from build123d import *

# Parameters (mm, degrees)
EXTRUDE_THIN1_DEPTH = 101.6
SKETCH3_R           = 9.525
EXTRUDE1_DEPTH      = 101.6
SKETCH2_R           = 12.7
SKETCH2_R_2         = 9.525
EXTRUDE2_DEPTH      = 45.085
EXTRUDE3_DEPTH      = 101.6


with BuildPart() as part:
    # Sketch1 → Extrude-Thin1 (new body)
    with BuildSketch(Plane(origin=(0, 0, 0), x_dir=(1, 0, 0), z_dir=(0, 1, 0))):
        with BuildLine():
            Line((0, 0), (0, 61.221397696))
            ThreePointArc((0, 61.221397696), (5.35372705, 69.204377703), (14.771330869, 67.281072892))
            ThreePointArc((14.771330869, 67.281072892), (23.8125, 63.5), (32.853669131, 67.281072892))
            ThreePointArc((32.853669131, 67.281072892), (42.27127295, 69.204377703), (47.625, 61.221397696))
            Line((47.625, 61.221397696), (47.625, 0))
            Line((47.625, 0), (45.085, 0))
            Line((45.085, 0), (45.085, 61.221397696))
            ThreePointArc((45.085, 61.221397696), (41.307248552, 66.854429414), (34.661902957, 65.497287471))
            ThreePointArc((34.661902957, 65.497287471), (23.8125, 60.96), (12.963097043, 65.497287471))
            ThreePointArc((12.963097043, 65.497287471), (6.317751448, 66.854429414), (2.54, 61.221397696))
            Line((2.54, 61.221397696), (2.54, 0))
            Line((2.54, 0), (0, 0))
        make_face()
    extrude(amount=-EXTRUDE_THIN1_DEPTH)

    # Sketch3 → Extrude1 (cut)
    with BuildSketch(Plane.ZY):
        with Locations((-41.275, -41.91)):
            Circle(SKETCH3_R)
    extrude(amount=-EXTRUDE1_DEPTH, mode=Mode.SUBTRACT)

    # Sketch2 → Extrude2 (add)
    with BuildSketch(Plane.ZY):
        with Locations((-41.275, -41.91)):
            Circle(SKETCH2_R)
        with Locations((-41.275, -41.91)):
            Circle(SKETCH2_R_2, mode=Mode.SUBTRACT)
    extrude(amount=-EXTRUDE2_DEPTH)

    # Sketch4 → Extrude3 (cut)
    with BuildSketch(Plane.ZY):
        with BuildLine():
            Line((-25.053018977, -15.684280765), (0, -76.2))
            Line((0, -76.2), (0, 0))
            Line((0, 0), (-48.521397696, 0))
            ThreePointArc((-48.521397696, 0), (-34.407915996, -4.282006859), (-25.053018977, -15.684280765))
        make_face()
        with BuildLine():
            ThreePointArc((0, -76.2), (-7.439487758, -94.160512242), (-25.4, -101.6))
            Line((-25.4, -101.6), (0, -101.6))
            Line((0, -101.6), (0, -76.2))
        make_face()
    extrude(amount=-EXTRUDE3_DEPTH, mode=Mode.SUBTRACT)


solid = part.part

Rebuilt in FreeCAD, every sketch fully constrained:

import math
import FreeCAD as App
import Part
import Sketcher
from FreeCAD import Vector
Q = App.Units.Quantity

doc = App.newDocument("Part")
params = doc.addObject("Spreadsheet::Sheet", "Params")
for row, (alias, value) in enumerate([
    ("sketch1_radius", "0.6 in"),
    ("sketch1_radius2", "0.5 in"),
    ("pad1_length", "4 in"),
    ("sketch2_diameter", "0.75 in"),
    ("pocket1_length", "4 in"),
    ("sketch3_diameter", "1 in"),
    ("sketch3_diameter2", "0.75 in"),
    ("pad2_length", "1.775 in"),
    ("sketch4_radius", "1 in"),
    ("sketch4_width", "3 in"),
    ("pocket2_length", "4 in"),
], start=1):
    params.set(f"A{row}", alias)
    params.set(f"B{row}", "=" + value)
    params.setAlias(f"B{row}", alias)

body = doc.addObject("PartDesign::Body", "Body")

# Sketch on XZ plane
sketch1 = body.newObject("Sketcher::SketchObject", "Sketch")
sketch1.AttachmentSupport = (doc.getObject("XZ_Plane"), [""])
sketch1.MapMode = "FlatFace"
sketch1.addGeometry(Part.LineSegment(Vector(0, -61.2, 0), Vector(0, 0, 0)), False)
sketch1.addGeometry(Part.LineSegment(Vector(0, 0, 0), Vector(2.5, 0, 0)), False)
sketch1.addGeometry(Part.LineSegment(Vector(2.5, 0, 0), Vector(2.5, -61.2, 0)), False)
sketch1.addGeometry(Part.ArcOfCircle(Part.Circle(Vector(8.6, -61.2, 0), Vector(0, 0, 1), 6.1), math.radians(180), math.radians(315)), False)
sketch1.addGeometry(Part.ArcOfCircle(Part.Circle(Vector(23.8, -76.2, 0), Vector(0, 0, 1), 15.2), math.radians(45), math.radians(135)), False)
sketch1.addGeometry(Part.ArcOfCircle(Part.Circle(Vector(39, -61.2, 0), Vector(0, 0, 1), 6.1), math.radians(-135), math.radians(0)), False)
sketch1.addGeometry(Part.LineSegment(Vector(45.1, -61.2, 0), Vector(45.1, 0, 0)), False)
sketch1.addGeometry(Part.LineSegment(Vector(45.1, 0, 0), Vector(47.6, 0, 0)), False)
sketch1.addGeometry(Part.LineSegment(Vector(47.6, 0, 0), Vector(47.6, -61.2, 0)), False)
sketch1.addGeometry(Part.ArcOfCircle(Part.Circle(Vector(39, -61.2, 0), Vector(0, 0, 1), 8.6), math.radians(-135), math.radians(0)), False)
sketch1.addGeometry(Part.ArcOfCircle(Part.Circle(Vector(23.8, -76.2, 0), Vector(0, 0, 1), 12.7), math.radians(45), math.radians(135)), False)
sketch1.addGeometry(Part.ArcOfCircle(Part.Circle(Vector(8.6, -61.2, 0), Vector(0, 0, 1), 8.6), math.radians(180), math.radians(315)), False)
sketch1.addConstraint(Sketcher.Constraint("Coincident", 0, 2, 1, 1))
sketch1.addConstraint(Sketcher.Constraint("Coincident", 1, 2, 2, 1))
sketch1.addConstraint(Sketcher.Constraint("Tangent", 2, 2, 3, 1))
sketch1.addConstraint(Sketcher.Constraint("Tangent", 3, 2, 4, 2))
sketch1.addConstraint(Sketcher.Constraint("Tangent", 4, 1, 5, 1))
sketch1.addConstraint(Sketcher.Constraint("Tangent", 5, 2, 6, 1))
sketch1.addConstraint(Sketcher.Constraint("Coincident", 6, 2, 7, 1))
sketch1.addConstraint(Sketcher.Constraint("Coincident", 7, 2, 8, 1))
sketch1.addConstraint(Sketcher.Constraint("Tangent", 8, 2, 9, 2))
sketch1.addConstraint(Sketcher.Constraint("Tangent", 9, 1, 10, 1))
sketch1.addConstraint(Sketcher.Constraint("Tangent", 10, 2, 11, 2))
sketch1.addConstraint(Sketcher.Constraint("Tangent", 11, 1, 0, 1))
sketch1.addConstraint(Sketcher.Constraint("Vertical", 0))
sketch1.addConstraint(Sketcher.Constraint("Horizontal", 1))
sketch1.addConstraint(Sketcher.Constraint("Vertical", 2))
sketch1.addConstraint(Sketcher.Constraint("Vertical", 6))
sketch1.addConstraint(Sketcher.Constraint("Horizontal", 7))
sketch1.addConstraint(Sketcher.Constraint("Vertical", 8))
sketch1.addConstraint(Sketcher.Constraint("Coincident", 0, 2, -1, 1))
sketch1.addConstraint(Sketcher.Constraint("Coincident", 9, 3, 5, 3))
sketch1.addConstraint(Sketcher.Constraint("Coincident", 10, 3, 4, 3))
sketch1.addConstraint(Sketcher.Constraint("Coincident", 11, 3, 3, 3))
sketch1.addConstraint(Sketcher.Constraint("Equal", 3, 5))
sketch1.addConstraint(Sketcher.Constraint("PointOnObject", 6, 2, -1))
sketch1.addConstraint(Sketcher.Constraint("Horizontal", 3, 3, 5, 3))
sketch1.addConstraint(Sketcher.Constraint("Radius", 4, Q("0.6 in")))
sketch1.addConstraint(Sketcher.Constraint("Radius", 10, Q("0.5 in")))
sketch1.addConstraint(Sketcher.Constraint("DistanceY", 4, 3, -1, 1, Q("3 in")))
sketch1.addConstraint(Sketcher.Constraint("DistanceX", -1, 1, 4, 3, Q("0.9375 in")))
sketch1.addConstraint(Sketcher.Constraint("Radius", 3, 6.088602))
sketch1.setExpression("Constraints[25]", "Params.sketch1_radius")
sketch1.setExpression("Constraints[26]", "Params.sketch1_radius2")
pad1 = body.newObject("PartDesign::Pad", "Pad")
pad1.Profile = sketch1
pad1.setExpression("Length", "Params.pad1_length")

# Sketch on YZ plane
sketch2 = body.newObject("Sketcher::SketchObject", "Sketch001")
sketch2.AttachmentSupport = (doc.getObject("YZ_Plane"), [""])
sketch2.MapMode = "FlatFace"
sketch2.addGeometry(Part.Circle(Vector(-42, -41, 0), Vector(0, 0, 1), 10), False)
sketch2.addConstraint(Sketcher.Constraint("Diameter", 0, Q("0.75 in")))
sketch2.addConstraint(Sketcher.Constraint("DistanceX", 0, 3, -1, 1, Q("1.65 in")))
sketch2.addConstraint(Sketcher.Constraint("DistanceY", 0, 3, -1, 1, Q("1.625 in")))
sketch2.setExpression("Constraints[0]", "Params.sketch2_diameter")
pocket1 = body.newObject("PartDesign::Pocket", "Pocket")
pocket1.Profile = sketch2
pocket1.setExpression("Length", "Params.pocket1_length")
pocket1.Reversed = True

# Sketch on YZ plane
sketch3 = body.newObject("Sketcher::SketchObject", "Sketch002")
sketch3.AttachmentSupport = (doc.getObject("YZ_Plane"), [""])
sketch3.MapMode = "FlatFace"
sketch3.addGeometry(Part.Circle(Vector(-42, -41, 0), Vector(0, 0, 1), 13), False)
sketch3.addGeometry(Part.Circle(Vector(-42, -41, 0), Vector(0, 0, 1), 10), False)
sketch3.addConstraint(Sketcher.Constraint("Coincident", 1, 3, 0, 3))
sketch3.addConstraint(Sketcher.Constraint("Diameter", 0, Q("1 in")))
sketch3.addConstraint(Sketcher.Constraint("Diameter", 1, Q("0.75 in")))
sketch3.addConstraint(Sketcher.Constraint("DistanceX", 0, 3, -1, 1, Q("1.65 in")))
sketch3.addConstraint(Sketcher.Constraint("DistanceY", 0, 3, -1, 1, Q("1.625 in")))
sketch3.setExpression("Constraints[1]", "Params.sketch3_diameter")
sketch3.setExpression("Constraints[2]", "Params.sketch3_diameter2")
pad2 = body.newObject("PartDesign::Pad", "Pad001")
pad2.Profile = sketch3
pad2.setExpression("Length", "Params.pad2_length")

# Sketch on YZ plane
sketch4 = body.newObject("Sketcher::SketchObject", "Sketch003")
sketch4.AttachmentSupport = (doc.getObject("YZ_Plane"), [""])
sketch4.MapMode = "FlatFace"
sketch4.addGeometry(Part.LineSegment(Vector(-16, -25, 0), Vector(-76, 0, 0)), False)
sketch4.addGeometry(Part.LineSegment(Vector(-76, 0, 0), Vector(0, 0, 0)), False)
sketch4.addGeometry(Part.LineSegment(Vector(0, 0, 0), Vector(0, -49, 0)), False)
sketch4.addGeometry(Part.ArcOfCircle(Part.Circle(Vector(-25, -49, 0), Vector(0, 0, 1), 25), math.radians(0), math.radians(68)), False)
sketch4.addGeometry(Part.ArcOfCircle(Part.Circle(Vector(-76, -25, 0), Vector(0, 0, 1), 25), math.radians(90), math.radians(180)), False)
sketch4.addGeometry(Part.LineSegment(Vector(-102, -25, 0), Vector(-102, 0, 0)), False)
sketch4.addGeometry(Part.LineSegment(Vector(-102, 0, 0), Vector(-76, 0, 0)), False)
sketch4.addConstraint(Sketcher.Constraint("Coincident", 0, 2, 1, 1))
sketch4.addConstraint(Sketcher.Constraint("Coincident", 1, 2, 2, 1))
sketch4.addConstraint(Sketcher.Constraint("Tangent", 2, 2, 3, 1))
sketch4.addConstraint(Sketcher.Constraint("Tangent", 3, 2, 0, 1))
sketch4.addConstraint(Sketcher.Constraint("Tangent", 4, 2, 5, 1))
sketch4.addConstraint(Sketcher.Constraint("Coincident", 5, 2, 6, 1))
sketch4.addConstraint(Sketcher.Constraint("Tangent", 6, 2, 4, 1))
sketch4.addConstraint(Sketcher.Constraint("Horizontal", 1))
sketch4.addConstraint(Sketcher.Constraint("Vertical", 2))
sketch4.addConstraint(Sketcher.Constraint("Vertical", 5))
sketch4.addConstraint(Sketcher.Constraint("Horizontal", 6))
sketch4.addConstraint(Sketcher.Constraint("Coincident", 1, 2, -1, 1))
sketch4.addConstraint(Sketcher.Constraint("Coincident", 6, 2, 0, 2))
sketch4.addConstraint(Sketcher.Constraint("Equal", 3, 4))
sketch4.addConstraint(Sketcher.Constraint("Radius", 3, Q("1 in")))
sketch4.addConstraint(Sketcher.Constraint("DistanceX", 1, 1, 1, 2, Q("3 in")))
sketch4.addConstraint(Sketcher.Constraint("Distance", 0, 65.496611))
sketch4.setExpression("Constraints[14]", "Params.sketch4_radius")
sketch4.setExpression("Constraints[15]", "Params.sketch4_width")
pocket2 = body.newObject("PartDesign::Pocket", "Pocket001")
pocket2.Profile = sketch4
pocket2.setExpression("Length", "Params.pocket2_length")
pocket2.Reversed = True

doc.recompute()
